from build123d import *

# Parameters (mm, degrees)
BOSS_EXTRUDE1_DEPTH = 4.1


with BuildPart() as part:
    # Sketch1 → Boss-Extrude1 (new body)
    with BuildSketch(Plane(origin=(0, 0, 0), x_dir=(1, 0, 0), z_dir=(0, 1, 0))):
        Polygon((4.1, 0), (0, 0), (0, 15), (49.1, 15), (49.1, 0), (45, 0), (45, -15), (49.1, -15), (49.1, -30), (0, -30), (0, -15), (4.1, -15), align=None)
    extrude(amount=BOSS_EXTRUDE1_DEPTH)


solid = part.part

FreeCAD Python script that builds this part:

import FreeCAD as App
import Part
import Sketcher

V = App.Vector


def add_polygon(sketch, points):
    """Adds a closed chain of lines whose ends are joined by coincident constraints."""
    first, n = sketch.GeometryCount, len(points)
    for a, b in zip(points, points[1:] + points[:1]):
        sketch.addGeometry(Part.LineSegment(App.Vector(*a, 0), App.Vector(*b, 0)), False)
    for i in range(n):
        sketch.addConstraint(Sketcher.Constraint("Coincident", first + i, 2, first + (i + 1) % n, 1))

doc = App.newDocument("Part")
body = doc.addObject("PartDesign::Body", "Body")

# Sketch on XZ plane
sketch1 = body.newObject("Sketcher::SketchObject", "Sketch")
sketch1.AttachmentSupport = (doc.getObject("XZ_Plane"), [""])
sketch1.MapMode = "FlatFace"
add_polygon(sketch1, [(0, 0), (4.1, 0), (4.1, 15), (0, 15), (0, 30), (49.1, 30), (49.1, 15), (45, 15), (45, 0), (49.1, 0), (49.1, -15), (0, -15)])  # lines 0-11
sketch1.addConstraint(Sketcher.Constraint("Horizontal", 0))
sketch1.addConstraint(Sketcher.Constraint("Vertical", 1))
sketch1.addConstraint(Sketcher.Constraint("Horizontal", 2))
sketch1.addConstraint(Sketcher.Constraint("Vertical", 3))
sketch1.addConstraint(Sketcher.Constraint("Horizontal", 4))
sketch1.addConstraint(Sketcher.Constraint("Vertical", 5))
sketch1.addConstraint(Sketcher.Constraint("Horizontal", 6))
sketch1.addConstraint(Sketcher.Constraint("Vertical", 7))
sketch1.addConstraint(Sketcher.Constraint("Horizontal", 8))
sketch1.addConstraint(Sketcher.Constraint("Vertical", 9))
sketch1.addConstraint(Sketcher.Constraint("Horizontal", 10))
sketch1.addConstraint(Sketcher.Constraint("Vertical", 11))
sketch1.addConstraint(Sketcher.Constraint("Coincident", 11, 2, -1, 1))
sketch1.addConstraint(Sketcher.Constraint("Symmetric", 2, 2, 10, 2, -1, 1))
sketch1.addConstraint(Sketcher.Constraint("Symmetric", 5, 2, 9, 2, -1))
sketch1.addConstraint(Sketcher.Constraint("PointOnObject", 7, 2, -1))
sketch1.addConstraint(Sketcher.Constraint("Equal", 2, 6))
sketch1.addConstraint(Sketcher.Constraint("Equal", 1, 3))
sketch1.addConstraint(Sketcher.Constraint("DistanceY", 1, 1, 1, 2, 15.0))
sketch1.addConstraint(Sketcher.Constraint("DistanceX", 0, 1, 0, 2, 4.1))
sketch1.addConstraint(Sketcher.Constraint("DistanceX", 4, 1, 4, 2, 49.1))
pad1 = body.newObject("PartDesign::Pad", "Pad")
pad1.Profile = sketch1
pad1.Length = 4.1
pad1.Reversed = True

doc.recompute()
